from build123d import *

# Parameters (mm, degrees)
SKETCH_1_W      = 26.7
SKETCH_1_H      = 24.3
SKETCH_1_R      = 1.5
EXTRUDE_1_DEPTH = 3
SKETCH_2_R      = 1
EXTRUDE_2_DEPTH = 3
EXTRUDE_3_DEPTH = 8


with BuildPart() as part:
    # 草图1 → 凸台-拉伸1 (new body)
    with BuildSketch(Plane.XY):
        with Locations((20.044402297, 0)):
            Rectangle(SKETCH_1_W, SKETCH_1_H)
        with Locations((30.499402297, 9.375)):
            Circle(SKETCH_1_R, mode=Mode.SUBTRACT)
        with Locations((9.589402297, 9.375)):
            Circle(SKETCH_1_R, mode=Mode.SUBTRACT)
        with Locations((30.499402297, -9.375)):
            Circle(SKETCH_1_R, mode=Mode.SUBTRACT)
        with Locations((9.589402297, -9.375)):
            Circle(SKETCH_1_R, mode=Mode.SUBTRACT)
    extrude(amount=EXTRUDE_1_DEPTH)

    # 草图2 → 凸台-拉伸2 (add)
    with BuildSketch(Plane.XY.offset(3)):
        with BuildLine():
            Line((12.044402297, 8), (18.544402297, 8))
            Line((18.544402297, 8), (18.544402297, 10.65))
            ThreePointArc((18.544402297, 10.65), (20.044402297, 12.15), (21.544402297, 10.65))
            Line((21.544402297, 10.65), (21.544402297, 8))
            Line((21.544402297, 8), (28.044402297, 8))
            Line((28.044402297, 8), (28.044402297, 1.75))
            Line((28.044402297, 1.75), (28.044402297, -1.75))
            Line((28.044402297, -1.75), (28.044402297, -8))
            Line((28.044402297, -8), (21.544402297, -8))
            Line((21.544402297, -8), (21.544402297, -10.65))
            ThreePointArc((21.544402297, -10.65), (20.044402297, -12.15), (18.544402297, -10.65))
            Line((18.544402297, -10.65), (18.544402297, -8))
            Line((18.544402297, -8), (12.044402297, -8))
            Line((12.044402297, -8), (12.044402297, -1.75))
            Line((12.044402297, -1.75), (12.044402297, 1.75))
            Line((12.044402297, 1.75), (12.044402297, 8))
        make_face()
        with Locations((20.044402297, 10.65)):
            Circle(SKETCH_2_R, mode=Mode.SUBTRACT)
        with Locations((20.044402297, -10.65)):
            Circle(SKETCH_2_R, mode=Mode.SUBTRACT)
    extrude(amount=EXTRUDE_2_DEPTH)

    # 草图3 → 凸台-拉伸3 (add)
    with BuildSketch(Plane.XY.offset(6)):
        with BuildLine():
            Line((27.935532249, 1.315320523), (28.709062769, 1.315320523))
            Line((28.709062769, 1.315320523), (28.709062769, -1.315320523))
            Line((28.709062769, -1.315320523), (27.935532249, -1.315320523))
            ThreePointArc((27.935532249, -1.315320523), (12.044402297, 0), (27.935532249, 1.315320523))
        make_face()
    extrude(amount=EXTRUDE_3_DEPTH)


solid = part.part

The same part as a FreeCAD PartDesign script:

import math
import FreeCAD as App
import Part
import Sketcher
Q = App.Units.Quantity


def add_polygon(sketch, points):
    """Adds a closed chain of lines whose ends are joined by coincident constraints."""
    first, n = sketch.GeometryCount, len(points)
    for a, b in zip(points, points[1:] + points[:1]):
        sketch.addGeometry(Part.LineSegment(App.Vector(*a, 0), App.Vector(*b, 0)), False)
    for i in range(n):
        sketch.addConstraint(Sketcher.Constraint("Coincident", first + i, 2, first + (i + 1) % n, 1))

doc = App.newDocument("Part")
params = doc.addObject("Spreadsheet::Sheet", "Params")
for row, (alias, value) in enumerate([
    ("sketch1_diameter", "3 mm"),
    ("sketch1_width", "26.7 mm"),
    ("sketch1_height", "24.3 mm"),
    ("pad1_length", "3 mm"),
    ("sketch2_diameter", "2 mm"),
    ("sketch2_radius", "1.5 mm"),
    ("sketch2_height", "16 mm"),
    ("sketch2_width", "6.5 mm"),
    ("sketch2_height2", "2.65 mm"),
    ("pad2_length", "3 mm"),
    ("sketch3_radius", "8 mm"),
    ("pad3_length", "8 mm"),
], start=1):
    params.set(f"A{row}", alias)
    params.set(f"B{row}", "=" + value)
    params.setAlias(f"B{row}", alias)

body = doc.addObject("PartDesign::Body", "Body")

sketch1 = body.newObject("Sketcher::SketchObject", "Sketch")
sketch1.AttachmentSupport = (doc.getObject("XY_Plane"), [""])
sketch1.MapMode = "FlatFace"
add_polygon(sketch1, [(6.7, 12.2), (6.7, -12.2), (33.4, -12.2), (33.4, 12.2)])
sketch1.addGeometry(Part.Circle(App.Vector(9.6, -9.4, 0), App.Vector(0, 0, 1), 1.5), False)
sketch1.addGeometry(Part.Circle(App.Vector(30.5, -9.4, 0), App.Vector(0, 0, 1), 1.5), False)
sketch1.addGeometry(Part.Circle(App.Vector(9.6, 9.4, 0), App.Vector(0, 0, 1), 1.5), False)
sketch1.addGeometry(Part.Circle(App.Vector(30.5, 9.4, 0), App.Vector(0, 0, 1), 1.5), False)
sketch1.addConstraint(Sketcher.Constraint("Vertical", 0))
sketch1.addConstraint(Sketcher.Constraint("Horizontal", 1))
sketch1.addConstraint(Sketcher.Constraint("Vertical", 2))
sketch1.addConstraint(Sketcher.Constraint("Horizontal", 3))
sketch1.addConstraint(Sketcher.Constraint("Equal", 4, 5))
sketch1.addConstraint(Sketcher.Constraint("Equal", 5, 6))
sketch1.addConstraint(Sketcher.Constraint("Equal", 6, 7))
sketch1.addConstraint(Sketcher.Constraint("Symmetric", 4, 3, 6, 3, -1))
sketch1.addConstraint(Sketcher.Constraint("Symmetric", 5, 3, 7, 3, -1))
sketch1.addConstraint(Sketcher.Constraint("Horizontal", 4, 3, 5, 3))
sketch1.addConstraint(Sketcher.Constraint("Diameter", 4, Q("3 mm")))
sketch1.addConstraint(Sketcher.Constraint("DistanceX", 1, 1, 1, 2, Q("26.7 mm")))
sketch1.addConstraint(Sketcher.Constraint("DistanceY", 0, 2, 0, 1, Q("24.3 mm")))
sketch1.addConstraint(Sketcher.Constraint("DistanceY", 0, 2, -1, 1, Q("12.15 mm")))
sketch1.addConstraint(Sketcher.Constraint("DistanceX", 4, 3, 5, 3, Q("20.91 mm")))
sketch1.addConstraint(Sketcher.Constraint("DistanceY", 4, 3, 6, 3, Q("18.75 mm")))
sketch1.addConstraint(Sketcher.Constraint("DistanceX", 0, 2, 4, 3, Q("2.895 mm")))
sketch1.addConstraint(Sketcher.Constraint("DistanceX", -1, 1, 4, 3, Q("9.589402 mm")))
sketch1.setExpression("Constraints[14]", "Params.sketch1_diameter")
sketch1.setExpression("Constraints[15]", "Params.sketch1_width")
sketch1.setExpression("Constraints[16]", "Params.sketch1_height")
pad1 = body.newObject("PartDesign::Pad", "Pad")
pad1.Profile = sketch1
pad1.setExpression("Length", "Params.pad1_length")

sketch2 = body.newObject("Sketcher::SketchObject", "Sketch001")
sketch2.AttachmentSupport = (doc.getObject("XY_Plane"), [""])
sketch2.MapMode = "FlatFace"
sketch2.AttachmentOffset = App.Placement(App.Vector(0, 0, 3), App.Rotation())
sketch2.addGeometry(Part.LineSegment(App.Vector(18.5, 8, 0), App.Vector(12, 8, 0)), False)
sketch2.addGeometry(Part.LineSegment(App.Vector(12, 8, 0), App.Vector(12, -8, 0)), False)
sketch2.addGeometry(Part.LineSegment(App.Vector(12, -8, 0), App.Vector(18.5, -8, 0)), False)
sketch2.addGeometry(Part.LineSegment(App.Vector(18.5, -8, 0), App.Vector(18.5, -10.7, 0)), False)
sketch2.addGeometry(Part.ArcOfCircle(Part.Circle(App.Vector(20, -10.7, 0), App.Vector(0, 0, 1), 1.5), math.radians(180), math.radians(360)), False)
sketch2.addGeometry(Part.LineSegment(App.Vector(21.5, -10.7, 0), App.Vector(21.5, -8, 0)), False)
sketch2.addGeometry(Part.LineSegment(App.Vector(21.5, -8, 0), App.Vector(28, -8, 0)), False)
sketch2.addGeometry(Part.LineSegment(App.Vector(28, -8, 0), App.Vector(28, 8, 0)), False)
sketch2.addGeometry(Part.LineSegment(App.Vector(28, 8, 0), App.Vector(21.5, 8, 0)), False)
sketch2.addGeometry(Part.LineSegment(App.Vector(21.5, 8, 0), App.Vector(21.5, 10.7, 0)), False)
sketch2.addGeometry(Part.ArcOfCircle(Part.Circle(App.Vector(20, 10.7, 0), App.Vector(0, 0, 1), 1.5), math.radians(0), math.radians(180)), False)
sketch2.addGeometry(Part.LineSegment(App.Vector(18.5, 10.7, 0), App.Vector(18.5, 8, 0)), False)
sketch2.addGeometry(Part.Circle(App.Vector(20, -10.7, 0), App.Vector(0, 0, 1), 1), False)
sketch2.addGeometry(Part.Circle(App.Vector(20, 10.7, 0), App.Vector(0, 0, 1), 1), False)
sketch2.addConstraint(Sketcher.Constraint("Coincident", 0, 2, 1, 1))
sketch2.addConstraint(Sketcher.Constraint("Coincident", 1, 2, 2, 1))
sketch2.addConstraint(Sketcher.Constraint("Coincident", 2, 2, 3, 1))
sketch2.addConstraint(Sketcher.Constraint("Tangent", 3, 2, 4, 1))
sketch2.addConstraint(Sketcher.Constraint("Tangent", 4, 2, 5, 1))
sketch2.addConstraint(Sketcher.Constraint("Coincident", 5, 2, 6, 1))
sketch2.addConstraint(Sketcher.Constraint("Coincident", 6, 2, 7, 1))
sketch2.addConstraint(Sketcher.Constraint("Coincident", 7, 2, 8, 1))
sketch2.addConstraint(Sketcher.Constraint("Coincident", 8, 2, 9, 1))
sketch2.addConstraint(Sketcher.Constraint("Tangent", 9, 2, 10, 1))
sketch2.addConstraint(Sketcher.Constraint("Tangent", 10, 2, 11, 1))
sketch2.addConstraint(Sketcher.Constraint("Coincident", 11, 2, 0, 1))
sketch2.addConstraint(Sketcher.Constraint("Horizontal", 0))
sketch2.addConstraint(Sketcher.Constraint("Vertical", 1))
sketch2.addConstraint(Sketcher.Constraint("Horizontal", 2))
sketch2.addConstraint(Sketcher.Constraint("Vertical", 3))
sketch2.addConstraint(Sketcher.Constraint("Vertical", 5))
sketch2.addConstraint(Sketcher.Constraint("Horizontal", 6))
sketch2.addConstraint(Sketcher.Constraint("Vertical", 7))
sketch2.addConstraint(Sketcher.Constraint("Horizontal", 8))
sketch2.addConstraint(Sketcher.Constraint("Vertical", 9))
sketch2.addConstraint(Sketcher.Constraint("Vertical", 11))
sketch2.addConstraint(Sketcher.Constraint("Coincident", 12, 3, 4, 3))
sketch2.addConstraint(Sketcher.Constraint("Coincident", 13, 3, 10, 3))
sketch2.addConstraint(Sketcher.Constraint("Equal", 4, 10))
sketch2.addConstraint(Sketcher.Constraint("Equal", 12, 13))
sketch2.addConstraint(Sketcher.Constraint("Symmetric", 4, 3, 10, 3, -1))
sketch2.addConstraint(Sketcher.Constraint("Horizontal", 2, 2, 5, 2))
sketch2.addConstraint(Sketcher.Constraint("Horizontal", 0, 2, 7, 2))
sketch2.addConstraint(Sketcher.Constraint("Equal", 2, 6))
sketch2.addConstraint(Sketcher.Constraint("Equal", 5, 9))
sketch2.addConstraint(Sketcher.Constraint("Diameter", 12, Q("2 mm")))
sketch2.addConstraint(Sketcher.Constraint("Radius", 4, Q("1.5 mm")))
sketch2.addConstraint(Sketcher.Constraint("DistanceY", 1, 2, 1, 1, Q("16 mm")))
sketch2.addConstraint(Sketcher.Constraint("DistanceX", 0, 2, 0, 1, Q("6.5 mm")))
sketch2.addConstraint(Sketcher.Constraint("DistanceY", 3, 2, 3, 1, Q("2.65 mm")))
sketch2.addConstraint(Sketcher.Constraint("DistanceX", -1, 1, 4, 3, Q("20.044402 mm")))
sketch2.setExpression("Constraints[31]", "Params.sketch2_diameter")
sketch2.setExpression("Constraints[32]", "Params.sketch2_radius")
sketch2.setExpression("Constraints[33]", "Params.sketch2_height")
sketch2.setExpression("Constraints[34]", "Params.sketch2_width")
sketch2.setExpression("Constraints[35]", "Params.sketch2_height2")
pad2 = body.newObject("PartDesign::Pad", "Pad001")
pad2.Profile = sketch2
pad2.setExpression("Length", "Params.pad2_length")

sketch3 = body.newObject("Sketcher::SketchObject", "Sketch002")
sketch3.AttachmentSupport = (doc.getObject("XY_Plane"), [""])
sketch3.MapMode = "FlatFace"
sketch3.AttachmentOffset = App.Placement(App.Vector(0, 0, 6), App.Rotation())
sketch3.addGeometry(Part.LineSegment(App.Vector(28.7, 1.3, 0), App.Vector(27.9, 1.3, 0)), False)
sketch3.addGeometry(Part.ArcOfCircle(Part.Circle(App.Vector(20, 0, 0), App.Vector(0, 0, 1), 8), math.radians(9), math.radians(351)), False)
sketch3.addGeometry(Part.LineSegment(App.Vector(27.9, -1.3, 0), App.Vector(28.7, -1.3, 0)), False)
sketch3.addGeometry(Part.LineSegment(App.Vector(28.7, -1.3, 0), App.Vector(28.7, 1.3, 0)), False)
sketch3.addConstraint(Sketcher.Constraint("Coincident", 0, 2, 1, 1))
sketch3.addConstraint(Sketcher.Constraint("Coincident", 1, 2, 2, 1))
sketch3.addConstraint(Sketcher.Constraint("Coincident", 2, 2, 3, 1))
sketch3.addConstraint(Sketcher.Constraint("Coincident", 3, 2, 0, 1))
sketch3.addConstraint(Sketcher.Constraint("Horizontal", 0))
sketch3.addConstraint(Sketcher.Constraint("Horizontal", 2))
sketch3.addConstraint(Sketcher.Constraint("Vertical", 3))
sketch3.addConstraint(Sketcher.Constraint("Symmetric", 0, 2, 1, 2, -1))
sketch3.addConstraint(Sketcher.Constraint("Radius", 1, Q("8 mm")))
sketch3.addConstraint(Sketcher.Constraint("DistanceX", 0, 2, 0, 1, Q("0.773531 mm")))
sketch3.addConstraint(Sketcher.Constraint("DistanceY", 3, 1, 3, 2, Q("2.630641 mm")))
sketch3.addConstraint(Sketcher.Constraint("DistanceX", -1, 1, 1, 3, Q("20.044402 mm")))
sketch3.setExpression("Constraints[8]", "Params.sketch3_radius")
pad3 = body.newObject("PartDesign::Pad", "Pad002")
pad3.Profile = sketch3
pad3.setExpression("Length", "Params.pad3_length")

doc.recompute()
